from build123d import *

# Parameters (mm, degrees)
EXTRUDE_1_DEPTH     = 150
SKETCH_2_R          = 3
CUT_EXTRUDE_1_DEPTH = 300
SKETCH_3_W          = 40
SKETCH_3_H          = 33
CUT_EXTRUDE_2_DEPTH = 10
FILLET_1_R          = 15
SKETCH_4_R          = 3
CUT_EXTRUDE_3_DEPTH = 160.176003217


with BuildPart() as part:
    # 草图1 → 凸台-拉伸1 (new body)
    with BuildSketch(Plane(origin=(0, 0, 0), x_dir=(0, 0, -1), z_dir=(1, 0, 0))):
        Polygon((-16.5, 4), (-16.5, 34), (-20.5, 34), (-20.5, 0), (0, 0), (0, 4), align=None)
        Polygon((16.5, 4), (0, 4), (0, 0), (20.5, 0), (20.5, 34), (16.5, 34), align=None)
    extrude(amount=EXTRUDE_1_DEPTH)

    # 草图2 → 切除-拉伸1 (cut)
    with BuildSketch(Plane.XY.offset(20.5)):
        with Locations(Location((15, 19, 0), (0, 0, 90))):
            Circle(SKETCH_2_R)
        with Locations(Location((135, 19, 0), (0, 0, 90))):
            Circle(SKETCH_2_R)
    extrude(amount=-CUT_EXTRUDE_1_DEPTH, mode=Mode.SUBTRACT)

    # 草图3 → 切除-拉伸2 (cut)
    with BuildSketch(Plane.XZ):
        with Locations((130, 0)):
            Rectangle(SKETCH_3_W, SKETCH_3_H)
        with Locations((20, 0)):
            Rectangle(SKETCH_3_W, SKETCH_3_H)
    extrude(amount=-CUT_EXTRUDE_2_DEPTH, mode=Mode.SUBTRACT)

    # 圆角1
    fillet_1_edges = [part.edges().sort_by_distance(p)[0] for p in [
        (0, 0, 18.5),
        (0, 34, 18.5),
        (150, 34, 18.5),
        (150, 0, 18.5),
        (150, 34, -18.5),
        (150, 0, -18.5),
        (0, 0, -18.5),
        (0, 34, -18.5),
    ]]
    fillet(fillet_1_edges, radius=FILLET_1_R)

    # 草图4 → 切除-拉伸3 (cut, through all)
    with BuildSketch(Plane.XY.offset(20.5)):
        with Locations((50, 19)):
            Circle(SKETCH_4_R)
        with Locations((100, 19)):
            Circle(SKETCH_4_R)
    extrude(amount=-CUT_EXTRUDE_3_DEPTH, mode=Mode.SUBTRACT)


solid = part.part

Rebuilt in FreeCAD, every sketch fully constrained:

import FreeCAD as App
import Part
import Sketcher

V = App.Vector
Q = App.Units.Quantity


def edges_at(feature, points):
    """Names of the edges that pass closest to the given points."""
    edges = feature.Shape.Edges
    near = lambda p: min(range(len(edges)), key=lambda i: edges[i].distToShape(Part.Vertex(*p))[0])
    return sorted({f"Edge{near(p) + 1}" for p in points})

doc = App.newDocument("Part")
body = doc.addObject("PartDesign::Body", "Body")

# Sketch on YZ plane
sketch1 = body.newObject("Sketcher::SketchObject", "Sketch")
sketch1.AttachmentSupport = (doc.getObject("YZ_Plane"), [""])
sketch1.MapMode = "FlatFace"
sketch1.addGeometry(Part.LineSegment(V(4, 16.5, 0), V(34, 16.5, 0)), False)
sketch1.addGeometry(Part.LineSegment(V(34, 16.5, 0), V(34, 20.5, 0)), False)
sketch1.addGeometry(Part.LineSegment(V(34, 20.5, 0), V(0, 20.5, 0)), False)
sketch1.addGeometry(Part.LineSegment(V(0, 20.5, 0), V(0, -20.5, 0)), False)
sketch1.addGeometry(Part.LineSegment(V(0, -20.5, 0), V(34, -20.5, 0)), False)
sketch1.addGeometry(Part.LineSegment(V(34, -20.5, 0), V(34, -16.5, 0)), False)
sketch1.addGeometry(Part.LineSegment(V(34, -16.5, 0), V(4, -16.5, 0)), False)
sketch1.addGeometry(Part.LineSegment(V(4, -16.5, 0), V(4, 16.5, 0)), False)
sketch1.addConstraint(Sketcher.Constraint("Coincident", 0, 2, 1, 1))
sketch1.addConstraint(Sketcher.Constraint("Coincident", 1, 2, 2, 1))
sketch1.addConstraint(Sketcher.Constraint("Coincident", 2, 2, 3, 1))
sketch1.addConstraint(Sketcher.Constraint("Coincident", 3, 2, 4, 1))
sketch1.addConstraint(Sketcher.Constraint("Coincident", 4, 2, 5, 1))
sketch1.addConstraint(Sketcher.Constraint("Coincident", 5, 2, 6, 1))
sketch1.addConstraint(Sketcher.Constraint("Coincident", 6, 2, 7, 1))
sketch1.addConstraint(Sketcher.Constraint("Coincident", 7, 2, 0, 1))
sketch1.addConstraint(Sketcher.Constraint("Horizontal", 0))
sketch1.addConstraint(Sketcher.Constraint("Vertical", 1))
sketch1.addConstraint(Sketcher.Constraint("Horizontal", 2))
sketch1.addConstraint(Sketcher.Constraint("Vertical", 3))
sketch1.addConstraint(Sketcher.Constraint("Horizontal", 4))
sketch1.addConstraint(Sketcher.Constraint("Vertical", 5))
sketch1.addConstraint(Sketcher.Constraint("Horizontal", 6))
sketch1.addConstraint(Sketcher.Constraint("Vertical", 7))
sketch1.addConstraint(Sketcher.Constraint("Symmetric", 2, 2, 3, 2, -1, 1))
sketch1.addConstraint(Sketcher.Constraint("Symmetric", 0, 2, 5, 2, -1))
sketch1.addConstraint(Sketcher.Constraint("DistanceX", 0, 1, 0, 2, Q("30 mm")))
sketch1.addConstraint(Sketcher.Constraint("DistanceX", 2, 2, 2, 1, Q("34 mm")))
sketch1.addConstraint(Sketcher.Constraint("DistanceY", 1, 1, 1, 2, Q("4 mm")))
sketch1.addConstraint(Sketcher.Constraint("DistanceY", 3, 2, 3, 1, Q("41 mm")))
pad1 = body.newObject("PartDesign::Pad", "Pad")
pad1.Profile = sketch1
pad1.Length = 150

# Sketch on XY plane
sketch2 = body.newObject("Sketcher::SketchObject", "Sketch001")
sketch2.AttachmentSupport = (doc.getObject("XY_Plane"), [""])
sketch2.MapMode = "FlatFace"
sketch2.AttachmentOffset = App.Placement(V(0, 0, 20.5), App.Rotation())
sketch2.addGeometry(Part.Circle(V(15, 19, 0), V(0, 0, 1), 3), False)
sketch2.addGeometry(Part.Circle(V(135, 19, 0), V(0, 0, 1), 3), False)
sketch2.addConstraint(Sketcher.Constraint("Equal", 0, 1))
sketch2.addConstraint(Sketcher.Constraint("Horizontal", 0, 3, 1, 3))
sketch2.addConstraint(Sketcher.Constraint("Diameter", 0, Q("6 mm")))
sketch2.addConstraint(Sketcher.Constraint("DistanceX", -1, 1, 0, 3, Q("15 mm")))
sketch2.addConstraint(Sketcher.Constraint("DistanceY", -1, 1, 0, 3, Q("19 mm")))
sketch2.addConstraint(Sketcher.Constraint("DistanceX", -1, 1, 1, 3, Q("135 mm")))
pocket1 = body.newObject("PartDesign::Pocket", "Pocket")
pocket1.Profile = sketch2
pocket1.Length = 300

# Sketch on XZ plane
sketch3 = body.newObject("Sketcher::SketchObject", "Sketch002")
sketch3.AttachmentSupport = (doc.getObject("XZ_Plane"), [""])
sketch3.MapMode = "FlatFace"
sketch3.addGeometry(Part.LineSegment(V(110, 16, 0), V(110, -16, 0)), False)
sketch3.addGeometry(Part.LineSegment(V(110, -16, 0), V(150, -16, 0)), False)
sketch3.addGeometry(Part.LineSegment(V(150, -16, 0), V(150, 16, 0)), False)
sketch3.addGeometry(Part.LineSegment(V(150, 16, 0), V(110, 16, 0)), False)
sketch3.addGeometry(Part.LineSegment(V(0, 16, 0), V(0, -16, 0)), False)
sketch3.addGeometry(Part.LineSegment(V(0, -16, 0), V(40, -16, 0)), False)
sketch3.addGeometry(Part.LineSegment(V(40, -16, 0), V(40, 16, 0)), False)
sketch3.addGeometry(Part.LineSegment(V(40, 16, 0), V(0, 16, 0)), False)
sketch3.addConstraint(Sketcher.Constraint("Coincident", 0, 2, 1, 1))
sketch3.addConstraint(Sketcher.Constraint("Coincident", 1, 2, 2, 1))
sketch3.addConstraint(Sketcher.Constraint("Coincident", 2, 2, 3, 1))
sketch3.addConstraint(Sketcher.Constraint("Coincident", 3, 2, 0, 1))
sketch3.addConstraint(Sketcher.Constraint("Coincident", 4, 2, 5, 1))
sketch3.addConstraint(Sketcher.Constraint("Coincident", 5, 2, 6, 1))
sketch3.addConstraint(Sketcher.Constraint("Coincident", 6, 2, 7, 1))
sketch3.addConstraint(Sketcher.Constraint("Coincident", 7, 2, 4, 1))
sketch3.addConstraint(Sketcher.Constraint("Vertical", 0))
sketch3.addConstraint(Sketcher.Constraint("Horizontal", 1))
sketch3.addConstraint(Sketcher.Constraint("Vertical", 2))
sketch3.addConstraint(Sketcher.Constraint("Horizontal", 3))
sketch3.addConstraint(Sketcher.Constraint("Vertical", 4))
sketch3.addConstraint(Sketcher.Constraint("Horizontal", 5))
sketch3.addConstraint(Sketcher.Constraint("Vertical", 6))
sketch3.addConstraint(Sketcher.Constraint("Horizontal", 7))
sketch3.addConstraint(Sketcher.Constraint("Symmetric", 4, 2, 7, 2, -1, 1))
sketch3.addConstraint(Sketcher.Constraint("Horizontal", 1, 2, 4, 2))
sketch3.addConstraint(Sketcher.Constraint("Horizontal", 3, 2, 6, 2))
sketch3.addConstraint(Sketcher.Constraint("Equal", 3, 5))
sketch3.addConstraint(Sketcher.Constraint("DistanceX", 1, 1, 1, 2, Q("40 mm")))
sketch3.addConstraint(Sketcher.Constraint("DistanceY", 0, 2, 0, 1, Q("33 mm")))
sketch3.addConstraint(Sketcher.Constraint("DistanceX", -1, 1, 0, 2, Q("110 mm")))
pocket2 = body.newObject("PartDesign::Pocket", "Pocket001")
pocket2.Profile = sketch3
pocket2.Length = 10
doc.recompute()

fillet = body.newObject("PartDesign::Fillet", "Fillet")
fillet.Base = (pocket2, edges_at(pocket2, [
    (0, 0, 18.5),
    (0, 34, 18.5),
    (150, 34, 18.5),
    (150, 0, 18.5),
    (150, 34, -18.5),
    (150, 0, -18.5),
    (0, 0, -18.5),
    (0, 34, -18.5),
]))
fillet.Radius = 15

# Sketch on XY plane
sketch4 = body.newObject("Sketcher::SketchObject", "Sketch003")
sketch4.AttachmentSupport = (doc.getObject("XY_Plane"), [""])
sketch4.MapMode = "FlatFace"
sketch4.AttachmentOffset = App.Placement(V(0, 0, 20.5), App.Rotation())
sketch4.addGeometry(Part.Circle(V(50, 19, 0), V(0, 0, 1), 3), False)
sketch4.addGeometry(Part.Circle(V(100, 19, 0), V(0, 0, 1), 3), False)
sketch4.addConstraint(Sketcher.Constraint("Equal", 0, 1))
sketch4.addConstraint(Sketcher.Constraint("Horizontal", 0, 3, 1, 3))
sketch4.addConstraint(Sketcher.Constraint("Diameter", 0, Q("6 mm")))
sketch4.addConstraint(Sketcher.Constraint("DistanceX", -1, 1, 0, 3, Q("50 mm")))
sketch4.addConstraint(Sketcher.Constraint("DistanceY", -1, 1, 0, 3, Q("19 mm")))
sketch4.addConstraint(Sketcher.Constraint("DistanceX", -1, 1, 1, 3, Q("100 mm")))
pocket3 = body.newObject("PartDesign::Pocket", "Pocket002")
pocket3.Profile = sketch4
pocket3.Type = "ThroughAll"

doc.recompute()
